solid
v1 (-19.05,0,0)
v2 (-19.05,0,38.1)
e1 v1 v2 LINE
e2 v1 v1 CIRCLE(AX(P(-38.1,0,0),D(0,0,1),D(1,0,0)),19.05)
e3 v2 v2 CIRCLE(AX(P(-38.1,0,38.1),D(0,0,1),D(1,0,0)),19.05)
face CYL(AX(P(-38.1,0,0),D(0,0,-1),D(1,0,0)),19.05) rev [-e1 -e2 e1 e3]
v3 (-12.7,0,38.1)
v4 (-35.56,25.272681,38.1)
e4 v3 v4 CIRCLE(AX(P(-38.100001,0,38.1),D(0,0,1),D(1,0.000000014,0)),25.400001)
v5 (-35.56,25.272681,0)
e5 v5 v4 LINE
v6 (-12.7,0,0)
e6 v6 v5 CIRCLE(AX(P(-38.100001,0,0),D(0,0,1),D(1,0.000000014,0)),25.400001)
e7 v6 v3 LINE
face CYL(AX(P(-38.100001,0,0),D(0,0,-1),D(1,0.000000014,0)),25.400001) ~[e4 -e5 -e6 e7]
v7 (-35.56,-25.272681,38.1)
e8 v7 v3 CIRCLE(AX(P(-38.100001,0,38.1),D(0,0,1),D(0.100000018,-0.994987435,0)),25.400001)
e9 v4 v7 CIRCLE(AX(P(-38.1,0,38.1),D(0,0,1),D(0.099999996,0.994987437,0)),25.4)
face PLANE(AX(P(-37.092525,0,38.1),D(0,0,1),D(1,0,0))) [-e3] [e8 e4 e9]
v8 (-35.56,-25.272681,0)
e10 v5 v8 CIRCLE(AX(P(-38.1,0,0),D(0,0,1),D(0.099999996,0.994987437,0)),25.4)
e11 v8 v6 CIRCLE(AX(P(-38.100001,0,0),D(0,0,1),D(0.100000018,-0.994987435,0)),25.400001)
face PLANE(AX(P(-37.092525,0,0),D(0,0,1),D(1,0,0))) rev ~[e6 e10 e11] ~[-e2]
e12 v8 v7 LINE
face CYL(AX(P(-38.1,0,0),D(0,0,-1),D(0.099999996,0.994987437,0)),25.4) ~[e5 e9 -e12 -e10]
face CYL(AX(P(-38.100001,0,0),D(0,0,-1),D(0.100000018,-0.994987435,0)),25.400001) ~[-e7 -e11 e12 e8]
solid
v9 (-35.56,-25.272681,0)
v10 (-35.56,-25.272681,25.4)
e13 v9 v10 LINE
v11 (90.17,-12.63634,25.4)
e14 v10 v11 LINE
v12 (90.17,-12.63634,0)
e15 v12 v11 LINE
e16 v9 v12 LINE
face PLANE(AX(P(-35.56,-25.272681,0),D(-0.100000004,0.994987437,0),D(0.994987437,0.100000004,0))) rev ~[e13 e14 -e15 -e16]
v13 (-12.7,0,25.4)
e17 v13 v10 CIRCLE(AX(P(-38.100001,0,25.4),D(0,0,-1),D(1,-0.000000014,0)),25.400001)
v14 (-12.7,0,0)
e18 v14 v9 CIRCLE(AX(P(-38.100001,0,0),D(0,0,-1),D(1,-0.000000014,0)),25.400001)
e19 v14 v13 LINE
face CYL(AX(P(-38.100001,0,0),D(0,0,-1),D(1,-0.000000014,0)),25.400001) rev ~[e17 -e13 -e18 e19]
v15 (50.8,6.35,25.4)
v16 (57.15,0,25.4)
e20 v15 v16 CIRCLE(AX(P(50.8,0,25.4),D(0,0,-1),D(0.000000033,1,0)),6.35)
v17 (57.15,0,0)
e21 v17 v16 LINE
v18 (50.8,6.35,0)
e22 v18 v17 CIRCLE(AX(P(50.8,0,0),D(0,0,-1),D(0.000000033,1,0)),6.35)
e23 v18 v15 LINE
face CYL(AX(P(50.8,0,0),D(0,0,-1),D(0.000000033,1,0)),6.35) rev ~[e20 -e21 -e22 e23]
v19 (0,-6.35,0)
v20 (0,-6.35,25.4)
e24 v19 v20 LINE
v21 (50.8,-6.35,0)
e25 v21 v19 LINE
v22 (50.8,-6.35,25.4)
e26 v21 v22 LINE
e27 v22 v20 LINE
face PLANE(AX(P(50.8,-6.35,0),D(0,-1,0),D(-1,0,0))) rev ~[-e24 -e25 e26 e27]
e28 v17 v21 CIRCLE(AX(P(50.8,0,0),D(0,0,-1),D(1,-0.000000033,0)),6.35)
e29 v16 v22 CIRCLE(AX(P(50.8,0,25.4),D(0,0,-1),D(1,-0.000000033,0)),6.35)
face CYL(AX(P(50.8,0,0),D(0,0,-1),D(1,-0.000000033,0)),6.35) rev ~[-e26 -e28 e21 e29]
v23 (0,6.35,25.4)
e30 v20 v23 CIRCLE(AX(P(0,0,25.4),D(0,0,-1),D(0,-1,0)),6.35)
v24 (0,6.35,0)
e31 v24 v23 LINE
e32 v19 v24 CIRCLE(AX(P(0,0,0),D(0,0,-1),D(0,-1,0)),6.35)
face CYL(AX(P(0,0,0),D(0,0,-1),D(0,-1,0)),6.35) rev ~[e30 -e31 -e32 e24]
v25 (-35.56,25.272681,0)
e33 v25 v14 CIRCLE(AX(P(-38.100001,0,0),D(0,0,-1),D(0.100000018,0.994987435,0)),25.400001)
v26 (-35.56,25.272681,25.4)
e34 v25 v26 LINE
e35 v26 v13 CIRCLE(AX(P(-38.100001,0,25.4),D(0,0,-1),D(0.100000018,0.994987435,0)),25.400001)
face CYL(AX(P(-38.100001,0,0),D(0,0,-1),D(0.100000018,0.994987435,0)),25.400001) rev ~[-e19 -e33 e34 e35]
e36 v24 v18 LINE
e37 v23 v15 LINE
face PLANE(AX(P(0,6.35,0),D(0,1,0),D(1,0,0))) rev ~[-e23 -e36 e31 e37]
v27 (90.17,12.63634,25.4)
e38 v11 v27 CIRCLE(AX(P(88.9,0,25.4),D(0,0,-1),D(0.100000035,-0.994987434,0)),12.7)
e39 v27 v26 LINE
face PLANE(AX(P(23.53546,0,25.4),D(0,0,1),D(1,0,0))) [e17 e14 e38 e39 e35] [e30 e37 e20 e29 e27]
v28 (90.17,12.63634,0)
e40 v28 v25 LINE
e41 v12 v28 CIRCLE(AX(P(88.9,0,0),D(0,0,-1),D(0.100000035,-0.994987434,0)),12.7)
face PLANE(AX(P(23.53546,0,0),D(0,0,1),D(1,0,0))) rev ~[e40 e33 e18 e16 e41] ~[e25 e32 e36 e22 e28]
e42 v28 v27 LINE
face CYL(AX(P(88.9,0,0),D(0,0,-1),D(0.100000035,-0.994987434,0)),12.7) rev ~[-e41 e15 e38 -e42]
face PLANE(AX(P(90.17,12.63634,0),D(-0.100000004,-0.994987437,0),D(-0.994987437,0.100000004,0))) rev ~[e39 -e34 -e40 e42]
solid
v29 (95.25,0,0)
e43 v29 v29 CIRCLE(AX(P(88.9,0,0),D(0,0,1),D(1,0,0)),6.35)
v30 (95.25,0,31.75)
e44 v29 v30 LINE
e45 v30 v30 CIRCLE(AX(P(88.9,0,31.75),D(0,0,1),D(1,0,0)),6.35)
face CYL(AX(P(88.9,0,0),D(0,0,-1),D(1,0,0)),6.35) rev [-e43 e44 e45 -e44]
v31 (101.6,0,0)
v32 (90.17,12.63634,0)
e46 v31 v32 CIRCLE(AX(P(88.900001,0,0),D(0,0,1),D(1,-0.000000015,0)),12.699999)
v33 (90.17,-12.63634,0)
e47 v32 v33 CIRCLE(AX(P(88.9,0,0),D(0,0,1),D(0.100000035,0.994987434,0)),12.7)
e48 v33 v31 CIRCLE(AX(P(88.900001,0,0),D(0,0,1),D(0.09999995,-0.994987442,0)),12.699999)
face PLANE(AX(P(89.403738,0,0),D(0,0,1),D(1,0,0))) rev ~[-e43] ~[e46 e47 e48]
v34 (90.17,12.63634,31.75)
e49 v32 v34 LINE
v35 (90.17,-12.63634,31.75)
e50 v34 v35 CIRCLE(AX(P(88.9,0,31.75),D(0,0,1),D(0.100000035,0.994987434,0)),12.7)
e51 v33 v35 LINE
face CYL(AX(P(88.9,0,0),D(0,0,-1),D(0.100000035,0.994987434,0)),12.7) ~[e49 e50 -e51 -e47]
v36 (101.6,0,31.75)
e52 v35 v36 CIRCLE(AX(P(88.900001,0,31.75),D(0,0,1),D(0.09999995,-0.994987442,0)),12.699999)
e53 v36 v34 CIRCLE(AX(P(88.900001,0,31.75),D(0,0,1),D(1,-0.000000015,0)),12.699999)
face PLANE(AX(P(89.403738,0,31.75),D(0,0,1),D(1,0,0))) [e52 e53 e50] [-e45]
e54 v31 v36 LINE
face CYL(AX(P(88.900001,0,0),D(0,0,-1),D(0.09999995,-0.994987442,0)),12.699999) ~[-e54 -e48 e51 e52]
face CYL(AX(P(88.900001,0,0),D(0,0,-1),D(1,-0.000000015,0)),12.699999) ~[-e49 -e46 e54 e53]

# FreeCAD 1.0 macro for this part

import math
import FreeCAD as App
import Part
import Sketcher
Q = App.Units.Quantity

doc = App.newDocument("Part")
body = doc.addObject("PartDesign::Body", "Body")

# Sketch on XY plane
sketch1 = doc.addObject("Sketcher::SketchObject", "Sketch")
body.addObject(sketch1)
sketch1.AttachmentSupport = (doc.XY_Plane, [""])
sketch1.MapMode = "FlatFace"
sketch1.addGeometry([
    Part.ArcOfCircle(Part.Circle(App.Vector(89, 0, 0), App.Vector(0, 0, 1), 13), math.radians(0), math.radians(84)),
    Part.ArcOfCircle(Part.Circle(App.Vector(89, 0, 0), App.Vector(0, 0, 1), 13), math.radians(84), math.radians(276)),
    Part.ArcOfCircle(Part.Circle(App.Vector(89, 0, 0), App.Vector(0, 0, 1), 13), math.radians(-84), math.radians(0)),
    Part.Circle(App.Vector(89, 0, 0), App.Vector(0, 0, 1), 6),
], False)
sketch1.addConstraint([
    Sketcher.Constraint("Tangent", 0, 2, 1, 1),
    Sketcher.Constraint("Tangent", 1, 2, 2, 1),
    Sketcher.Constraint("Tangent", 2, 2, 0, 1),
    Sketcher.Constraint("Coincident", 3, 3, 0, 3),
    Sketcher.Constraint("Symmetric", 0, 2, 1, 2, -1),
    Sketcher.Constraint("PointOnObject", 2, 2, -1),
    Sketcher.Constraint("Diameter", 3, Q("0.5 in")),
    Sketcher.Constraint("Radius", 0, Q("0.5 in")),
    Sketcher.Constraint("DistanceX", -1, 1, 2, 2, Q("4 in")),
    Sketcher.Constraint("DistanceX", -1, 1, 0, 2, Q("3.55 in")),
])
pad1 = doc.addObject("PartDesign::Pad", "Pad")
body.addObject(pad1)
pad1.Profile = sketch1
pad1.Length = Q("1.25 in")
body2 = doc.addObject("PartDesign::Body", "Body001")

# Sketch on XY plane
sketch2 = doc.addObject("Sketcher::SketchObject", "Sketch001")
body2.addObject(sketch2)
sketch2.AttachmentSupport = (doc.getObject("XY_Plane001"), [""])
sketch2.MapMode = "FlatFace"
sketch2.addGeometry([
    Part.ArcOfCircle(Part.Circle(App.Vector(-38, 0, 0), App.Vector(0, 0, 1), 25), math.radians(-84), math.radians(0)),
    Part.ArcOfCircle(Part.Circle(App.Vector(-38, 0, 0), App.Vector(0, 0, 1), 25), math.radians(0), math.radians(84)),
    Part.ArcOfCircle(Part.Circle(App.Vector(-38, 0, 0), App.Vector(0, 0, 1), 25), math.radians(84), math.radians(276)),
    Part.Circle(App.Vector(-38, 0, 0), App.Vector(0, 0, 1), 19),
], False)
sketch2.addConstraint([
    Sketcher.Constraint("Tangent", 0, 2, 1, 1),
    Sketcher.Constraint("Tangent", 1, 2, 2, 1),
    Sketcher.Constraint("Tangent", 2, 2, 0, 1),
    Sketcher.Constraint("Coincident", 3, 3, 0, 3),
    Sketcher.Constraint("Symmetric", 1, 2, 2, 2, -1),
    Sketcher.Constraint("PointOnObject", 0, 2, -1),
    Sketcher.Constraint("Radius", 0, Q("1 in")),
    Sketcher.Constraint("Diameter", 3, Q("1.5 in")),
    Sketcher.Constraint("DistanceX", 0, 3, -1, 1, Q("1.5 in")),
    Sketcher.Constraint("DistanceX", 1, 2, -1, 1, Q("1.4 in")),
])
pad2 = doc.addObject("PartDesign::Pad", "Pad001")
body2.addObject(pad2)
pad2.Profile = sketch2
pad2.Length = Q("1.5 in")
body3 = doc.addObject("PartDesign::Body", "Body002")

# Sketch on XY plane
sketch3 = doc.addObject("Sketcher::SketchObject", "Sketch002")
body3.addObject(sketch3)
sketch3.AttachmentSupport = (doc.getObject("XY_Plane002"), [""])
sketch3.MapMode = "FlatFace"
sketch3.addGeometry([
    Part.ArcOfCircle(Part.Circle(App.Vector(-38, 0, 0), App.Vector(0, 0, 1), 25), math.radians(0), math.radians(84)),  # 0
    Part.ArcOfCircle(Part.Circle(App.Vector(-38, 0, 0), App.Vector(0, 0, 1), 25), math.radians(-84), math.radians(0)),  # 1
    Part.LineSegment(App.Vector(-36, -25, 0), App.Vector(90, -13, 0)),  # 2
    Part.ArcOfCircle(Part.Circle(App.Vector(89, 0, 0), App.Vector(0, 0, 1), 13), math.radians(84), math.radians(276)),  # 3
    Part.LineSegment(App.Vector(90, 13, 0), App.Vector(-36, 25, 0)),  # 4
    Part.LineSegment(App.Vector(51, -6, 0), App.Vector(0, -6, 0)),  # 5
    Part.ArcOfCircle(Part.Circle(App.Vector(0, 0, 0), App.Vector(0, 0, 1), 6), math.radians(90), math.radians(270)),  # 6
    Part.LineSegment(App.Vector(0, 6, 0), App.Vector(51, 6, 0)),  # 7
    Part.ArcOfCircle(Part.Circle(App.Vector(51, 0, 0), App.Vector(0, 0, 1), 6), math.radians(0), math.radians(90)),  # 8
    Part.ArcOfCircle(Part.Circle(App.Vector(51, 0, 0), App.Vector(0, 0, 1), 6), math.radians(-90), math.radians(0)),  # 9
], False)
sketch3.addConstraint([
    Sketcher.Constraint("Tangent", 0, 1, 1, 2),
    Sketcher.Constraint("Tangent", 1, 1, 2, 1),
    Sketcher.Constraint("Tangent", 2, 2, 3, 2),
    Sketcher.Constraint("Tangent", 3, 1, 4, 1),
    Sketcher.Constraint("Tangent", 4, 2, 0, 2),
    Sketcher.Constraint("Tangent", 5, 2, 6, 2),
    Sketcher.Constraint("Tangent", 6, 1, 7, 1),
    Sketcher.Constraint("Tangent", 7, 2, 8, 2),
    Sketcher.Constraint("Tangent", 8, 1, 9, 2),
    Sketcher.Constraint("Tangent", 9, 1, 5, 1),
    Sketcher.Constraint("Horizontal", 5),
    Sketcher.Constraint("Horizontal", 7),
    Sketcher.Constraint("Coincident", 6, 3, -1, 1),
    Sketcher.Constraint("Equal", 0, 1),
    Sketcher.Constraint("Equal", 6, 8),
    Sketcher.Constraint("Symmetric", 2, 2, 3, 1, -1),
    Sketcher.Constraint("PointOnObject", 0, 1, -1),
    Sketcher.Constraint("PointOnObject", 8, 1, -1),
    Sketcher.Constraint("Radius", 0, Q("1 in")),
    Sketcher.Constraint("Radius", 3, Q("0.5 in")),
    Sketcher.Constraint("DistanceX", 5, 2, 5, 1, Q("2 in")),
    Sketcher.Constraint("Radius", 6, Q("0.25 in")),
    Sketcher.Constraint("DistanceX", 0, 3, 3, 3, Q("5 in")),
    Sketcher.Constraint("DistanceX", 0, 3, -1, 1, Q("1.5 in")),
])
pad3 = doc.addObject("PartDesign::Pad", "Pad002")
body3.addObject(pad3)
pad3.Profile = sketch3
pad3.Length = Q("1 in")

doc.recompute()
